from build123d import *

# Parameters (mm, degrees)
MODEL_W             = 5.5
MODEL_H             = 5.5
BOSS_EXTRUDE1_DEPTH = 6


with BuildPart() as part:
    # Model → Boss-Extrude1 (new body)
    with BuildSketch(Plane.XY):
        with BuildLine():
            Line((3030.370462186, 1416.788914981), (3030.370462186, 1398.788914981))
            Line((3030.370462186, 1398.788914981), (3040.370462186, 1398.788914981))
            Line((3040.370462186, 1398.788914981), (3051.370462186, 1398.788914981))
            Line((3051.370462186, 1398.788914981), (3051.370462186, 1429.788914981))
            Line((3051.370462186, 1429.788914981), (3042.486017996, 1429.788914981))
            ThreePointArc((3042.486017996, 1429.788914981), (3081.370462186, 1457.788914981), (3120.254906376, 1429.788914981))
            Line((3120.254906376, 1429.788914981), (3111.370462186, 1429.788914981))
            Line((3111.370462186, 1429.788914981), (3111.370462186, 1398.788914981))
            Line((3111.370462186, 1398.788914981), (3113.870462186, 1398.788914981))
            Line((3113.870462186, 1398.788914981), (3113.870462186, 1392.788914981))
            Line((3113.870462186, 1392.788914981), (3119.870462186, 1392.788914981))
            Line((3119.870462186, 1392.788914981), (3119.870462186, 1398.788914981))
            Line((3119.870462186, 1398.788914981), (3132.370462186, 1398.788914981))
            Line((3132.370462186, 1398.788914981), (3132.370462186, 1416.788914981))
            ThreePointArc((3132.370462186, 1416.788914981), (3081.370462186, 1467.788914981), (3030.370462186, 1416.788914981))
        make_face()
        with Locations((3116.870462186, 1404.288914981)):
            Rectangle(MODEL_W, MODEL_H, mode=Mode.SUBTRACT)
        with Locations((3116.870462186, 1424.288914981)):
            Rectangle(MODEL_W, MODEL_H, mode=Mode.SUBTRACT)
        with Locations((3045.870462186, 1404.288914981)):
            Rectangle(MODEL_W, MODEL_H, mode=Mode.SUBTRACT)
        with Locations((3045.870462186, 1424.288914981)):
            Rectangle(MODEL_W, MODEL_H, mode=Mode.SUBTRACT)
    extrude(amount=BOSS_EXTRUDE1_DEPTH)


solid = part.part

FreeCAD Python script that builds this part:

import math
import FreeCAD as App
import Part
import Sketcher
from FreeCAD import Vector

doc = App.newDocument("Part")
body = doc.addObject("PartDesign::Body", "Body")

# Sketch on XY plane
sketch1 = body.newObject("Sketcher::SketchObject", "Sketch")
sketch1.AttachmentSupport = (doc.getObject("XY_Plane"), [""])
sketch1.MapMode = "FlatFace"
sketch1.addGeometry([
    Part.LineSegment(Vector(3030.370462, 1416.788915, 0), Vector(3030.370462, 1398.788915, 0)),  # 0
    Part.LineSegment(Vector(3030.370462, 1398.788915, 0), Vector(3051.370462, 1398.788915, 0)),  # 1
    Part.LineSegment(Vector(3051.370462, 1398.788915, 0), Vector(3051.370462, 1429.788915, 0)),  # 2
    Part.LineSegment(Vector(3051.370462, 1429.788915, 0), Vector(3042.486018, 1429.788915, 0)),  # 3
    Part.ArcOfCircle(Part.Circle(Vector(3081.370462, 1416.788915, 0), Vector(0, 0, 1), 41), math.radians(18.486015), math.radians(161.513985)),  # 4
    Part.LineSegment(Vector(3120.254906, 1429.788915, 0), Vector(3111.370462, 1429.788915, 0)),  # 5
    Part.LineSegment(Vector(3111.370462, 1429.788915, 0), Vector(3111.370462, 1398.788915, 0)),  # 6
    Part.LineSegment(Vector(3111.370462, 1398.788915, 0), Vector(3113.870462, 1398.788915, 0)),  # 7
    Part.LineSegment(Vector(3113.870462, 1398.788915, 0), Vector(3113.870462, 1392.788915, 0)),  # 8
    Part.LineSegment(Vector(3113.870462, 1392.788915, 0), Vector(3119.870462, 1392.788915, 0)),  # 9
    Part.LineSegment(Vector(3119.870462, 1392.788915, 0), Vector(3119.870462, 1398.788915, 0)),  # 10
    Part.LineSegment(Vector(3119.870462, 1398.788915, 0), Vector(3132.370462, 1398.788915, 0)),  # 11
    Part.LineSegment(Vector(3132.370462, 1398.788915, 0), Vector(3132.370462, 1416.788915, 0)),  # 12
    Part.ArcOfCircle(Part.Circle(Vector(3081.370462, 1416.788915, 0), Vector(0, 0, 1), 51), math.radians(0), math.radians(180)),  # 13
    Part.LineSegment(Vector(3048.620462, 1401.538915, 0), Vector(3043.120462, 1401.538915, 0)),  # 14
    Part.LineSegment(Vector(3043.120462, 1401.538915, 0), Vector(3043.120462, 1407.038915, 0)),  # 15
    Part.LineSegment(Vector(3043.120462, 1407.038915, 0), Vector(3048.620462, 1407.038915, 0)),  # 16
    Part.LineSegment(Vector(3048.620462, 1407.038915, 0), Vector(3048.620462, 1401.538915, 0)),  # 17
    Part.LineSegment(Vector(3119.620462, 1401.538915, 0), Vector(3114.120462, 1401.538915, 0)),  # 18
    Part.LineSegment(Vector(3114.120462, 1401.538915, 0), Vector(3114.120462, 1407.038915, 0)),  # 19
    Part.LineSegment(Vector(3114.120462, 1407.038915, 0), Vector(3119.620462, 1407.038915, 0)),  # 20
    Part.LineSegment(Vector(3119.620462, 1407.038915, 0), Vector(3119.620462, 1401.538915, 0)),  # 21
    Part.LineSegment(Vector(3048.620462, 1421.538915, 0), Vector(3043.120462, 1421.538915, 0)),  # 22
    Part.LineSegment(Vector(3043.120462, 1421.538915, 0), Vector(3043.120462, 1427.038915, 0)),  # 23
    Part.LineSegment(Vector(3043.120462, 1427.038915, 0), Vector(3048.620462, 1427.038915, 0)),  # 24
    Part.LineSegment(Vector(3048.620462, 1427.038915, 0), Vector(3048.620462, 1421.538915, 0)),  # 25
    Part.LineSegment(Vector(3119.620462, 1421.538915, 0), Vector(3114.120462, 1421.538915, 0)),  # 26
    Part.LineSegment(Vector(3114.120462, 1421.538915, 0), Vector(3114.120462, 1427.038915, 0)),  # 27
    Part.LineSegment(Vector(3114.120462, 1427.038915, 0), Vector(3119.620462, 1427.038915, 0)),  # 28
    Part.LineSegment(Vector(3119.620462, 1427.038915, 0), Vector(3119.620462, 1421.538915, 0)),  # 29
], False)
sketch1.addConstraint([
    Sketcher.Constraint("Coincident", 0, 2, 1, 1),
    Sketcher.Constraint("Coincident", 1, 2, 2, 1),
    Sketcher.Constraint("Coincident", 2, 2, 3, 1),
    Sketcher.Constraint("Coincident", 3, 2, 4, 2),
    Sketcher.Constraint("Coincident", 4, 1, 5, 1),
    Sketcher.Constraint("Coincident", 5, 2, 6, 1),
    Sketcher.Constraint("Coincident", 6, 2, 7, 1),
    Sketcher.Constraint("Coincident", 7, 2, 8, 1),
    Sketcher.Constraint("Coincident", 8, 2, 9, 1),
    Sketcher.Constraint("Coincident", 9, 2, 10, 1),
    Sketcher.Constraint("Coincident", 10, 2, 11, 1),
    Sketcher.Constraint("Coincident", 11, 2, 12, 1),
    Sketcher.Constraint("Tangent", 12, 2, 13, 1),
    Sketcher.Constraint("Tangent", 13, 2, 0, 1),
    Sketcher.Constraint("Coincident", 14, 2, 15, 1),
    Sketcher.Constraint("Coincident", 15, 2, 16, 1),
    Sketcher.Constraint("Coincident", 16, 2, 17, 1),
    Sketcher.Constraint("Coincident", 17, 2, 14, 1),
    Sketcher.Constraint("Coincident", 18, 2, 19, 1),
    Sketcher.Constraint("Coincident", 19, 2, 20, 1),
    Sketcher.Constraint("Coincident", 20, 2, 21, 1),
    Sketcher.Constraint("Coincident", 21, 2, 18, 1),
    Sketcher.Constraint("Coincident", 22, 2, 23, 1),
    Sketcher.Constraint("Coincident", 23, 2, 24, 1),
    Sketcher.Constraint("Coincident", 24, 2, 25, 1),
    Sketcher.Constraint("Coincident", 25, 2, 22, 1),
    Sketcher.Constraint("Coincident", 26, 2, 27, 1),
    Sketcher.Constraint("Coincident", 27, 2, 28, 1),
    Sketcher.Constraint("Coincident", 28, 2, 29, 1),
    Sketcher.Constraint("Coincident", 29, 2, 26, 1),
    Sketcher.Constraint("Vertical", 0),
    Sketcher.Constraint("Horizontal", 1),
    Sketcher.Constraint("Vertical", 2),
    Sketcher.Constraint("Horizontal", 3),
    Sketcher.Constraint("Horizontal", 5),
    Sketcher.Constraint("Vertical", 6),
    Sketcher.Constraint("Horizontal", 7),
    Sketcher.Constraint("Vertical", 8),
    Sketcher.Constraint("Horizontal", 9),
    Sketcher.Constraint("Vertical", 10),
    Sketcher.Constraint("Horizontal", 11),
    Sketcher.Constraint("Vertical", 12),
    Sketcher.Constraint("Horizontal", 14),
    Sketcher.Constraint("Vertical", 15),
    Sketcher.Constraint("Horizontal", 16),
    Sketcher.Constraint("Vertical", 17),
    Sketcher.Constraint("Horizontal", 18),
    Sketcher.Constraint("Vertical", 19),
    Sketcher.Constraint("Horizontal", 20),
    Sketcher.Constraint("Vertical", 21),
    Sketcher.Constraint("Horizontal", 22),
    Sketcher.Constraint("Vertical", 23),
    Sketcher.Constraint("Horizontal", 24),
    Sketcher.Constraint("Vertical", 25),
    Sketcher.Constraint("Horizontal", 26),
    Sketcher.Constraint("Vertical", 27),
    Sketcher.Constraint("Horizontal", 28),
    Sketcher.Constraint("Vertical", 29),
    Sketcher.Constraint("Coincident", 13, 3, 4, 3),
    Sketcher.Constraint("Horizontal", 3, 2, 4, 1),
    Sketcher.Constraint("Horizontal", 1, 2, 6, 2),
    Sketcher.Constraint("Horizontal", 7, 2, 10, 2),
    Sketcher.Constraint("Horizontal", 17, 2, 18, 2),
    Sketcher.Constraint("Horizontal", 16, 2, 19, 2),
    Sketcher.Constraint("Horizontal", 25, 2, 26, 2),
    Sketcher.Constraint("Horizontal", 24, 2, 27, 2),
    Sketcher.Constraint("Vertical", 15, 2, 22, 2),
    Sketcher.Constraint("Vertical", 17, 2, 24, 2),
    Sketcher.Constraint("Vertical", 19, 2, 26, 2),
    Sketcher.Constraint("Vertical", 21, 2, 28, 2),
    Sketcher.Constraint("Equal", 3, 5),
    Sketcher.Constraint("Equal", 16, 18),
    Sketcher.Constraint("Equal", 9, 8),
    Sketcher.Constraint("Equal", 28, 15),
    Sketcher.Constraint("Equal", 21, 23),
    Sketcher.Constraint("Radius", 4, 41.0),
    Sketcher.Constraint("Radius", 13, 51.0),
    Sketcher.Constraint("DistanceX", 1, 1, 1, 2, 21.0),
    Sketcher.Constraint("DistanceX", 9, 1, 9, 2, 6.0),
    Sketcher.Constraint("DistanceY", 0, 2, 0, 1, 18.0),
    Sketcher.Constraint("DistanceY", 2, 1, 2, 2, 31.0),
    Sketcher.Constraint("DistanceX", 7, 1, 7, 2, 2.5),
    Sketcher.Constraint("DistanceX", 14, 2, 14, 1, 5.5),
    Sketcher.Constraint("DistanceY", 15, 2, 23, 2, 20.0),
    Sketcher.Constraint("DistanceX", 14, 2, 1, 2, 8.25),
    Sketcher.Constraint("DistanceY", 1, 2, 14, 2, 2.75),
    Sketcher.Constraint("DistanceX", 7, 2, 18, 2, 0.25),
    Sketcher.Constraint("DistanceX", -1, 1, 4, 3, 3081.370462),
    Sketcher.Constraint("DistanceY", -1, 1, 4, 3, 1416.788915),
])
pad1 = body.newObject("PartDesign::Pad", "Pad")
pad1.Profile = sketch1
pad1.Length = 6

doc.recompute()
